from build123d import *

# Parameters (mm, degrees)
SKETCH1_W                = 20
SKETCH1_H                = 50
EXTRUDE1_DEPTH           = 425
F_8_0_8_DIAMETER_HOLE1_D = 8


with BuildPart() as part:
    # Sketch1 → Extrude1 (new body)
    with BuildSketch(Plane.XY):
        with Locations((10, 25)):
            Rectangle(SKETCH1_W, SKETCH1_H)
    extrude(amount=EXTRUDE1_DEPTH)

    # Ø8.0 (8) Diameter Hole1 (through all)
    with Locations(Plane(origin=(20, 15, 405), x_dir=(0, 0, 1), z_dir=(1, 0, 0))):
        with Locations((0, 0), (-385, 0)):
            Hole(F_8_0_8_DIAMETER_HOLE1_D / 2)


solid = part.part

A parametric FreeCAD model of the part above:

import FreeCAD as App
import Part
import Sketcher
Q = App.Units.Quantity


def add_polygon(sketch, points):
    """Adds a closed chain of lines whose ends are joined by coincident constraints."""
    first, n = sketch.GeometryCount, len(points)
    for a, b in zip(points, points[1:] + points[:1]):
        sketch.addGeometry(Part.LineSegment(App.Vector(*a, 0), App.Vector(*b, 0)), False)
    for i in range(n):
        sketch.addConstraint(Sketcher.Constraint("Coincident", first + i, 2, first + (i + 1) % n, 1))

doc = App.newDocument("Part")
body = doc.addObject("PartDesign::Body", "Body")

# Sketch on XY plane
sketch1 = body.newObject("Sketcher::SketchObject", "Sketch")
sketch1.AttachmentSupport = (doc.getObject("XY_Plane"), [""])
sketch1.MapMode = "FlatFace"
add_polygon(sketch1, [(0, 50), (0, 0), (20, 0), (20, 50)])  # lines 0-3
sketch1.addConstraint([
    Sketcher.Constraint("Vertical", 0),
    Sketcher.Constraint("Horizontal", 1),
    Sketcher.Constraint("Vertical", 2),
    Sketcher.Constraint("Horizontal", 3),
    Sketcher.Constraint("Coincident", 0, 2, -1, 1),
    Sketcher.Constraint("DistanceX", 1, 1, 1, 2, Q("20 mm")),
    Sketcher.Constraint("DistanceY", 0, 2, 0, 1, Q("50 mm")),
])
pad1 = body.newObject("PartDesign::Pad", "Pad")
pad1.Profile = sketch1
pad1.Length = 425

# Sketch on YZ plane
sketch2 = body.newObject("Sketcher::SketchObject", "Sketch001")
sketch2.AttachmentSupport = (doc.getObject("YZ_Plane"), [""])
sketch2.MapMode = "FlatFace"
sketch2.AttachmentOffset = App.Placement(App.Vector(0, 0, 20), App.Rotation())
sketch2.addGeometry([
    Part.Circle(App.Vector(15, 405, 0), App.Vector(0, 0, 1), 4),
    Part.Circle(App.Vector(15, 20, 0), App.Vector(0, 0, 1), 4),
], False)
sketch2.addConstraint([
    Sketcher.Constraint("Equal", 0, 1),
    Sketcher.Constraint("Vertical", 0, 3, 1, 3),
    Sketcher.Constraint("Diameter", 0, Q("8 mm")),
    Sketcher.Constraint("DistanceX", -1, 1, 0, 3, Q("15 mm")),
    Sketcher.Constraint("DistanceY", -1, 1, 0, 3, Q("405 mm")),
    Sketcher.Constraint("DistanceY", -1, 1, 1, 3, Q("20 mm")),
])
doc.recompute()
hole = body.newObject("PartDesign::Hole", "Hole")
hole.Profile = sketch2
hole.ThreadType = "None"
hole.Diameter = 8
hole.DepthType = "ThroughAll"

doc.recompute()
